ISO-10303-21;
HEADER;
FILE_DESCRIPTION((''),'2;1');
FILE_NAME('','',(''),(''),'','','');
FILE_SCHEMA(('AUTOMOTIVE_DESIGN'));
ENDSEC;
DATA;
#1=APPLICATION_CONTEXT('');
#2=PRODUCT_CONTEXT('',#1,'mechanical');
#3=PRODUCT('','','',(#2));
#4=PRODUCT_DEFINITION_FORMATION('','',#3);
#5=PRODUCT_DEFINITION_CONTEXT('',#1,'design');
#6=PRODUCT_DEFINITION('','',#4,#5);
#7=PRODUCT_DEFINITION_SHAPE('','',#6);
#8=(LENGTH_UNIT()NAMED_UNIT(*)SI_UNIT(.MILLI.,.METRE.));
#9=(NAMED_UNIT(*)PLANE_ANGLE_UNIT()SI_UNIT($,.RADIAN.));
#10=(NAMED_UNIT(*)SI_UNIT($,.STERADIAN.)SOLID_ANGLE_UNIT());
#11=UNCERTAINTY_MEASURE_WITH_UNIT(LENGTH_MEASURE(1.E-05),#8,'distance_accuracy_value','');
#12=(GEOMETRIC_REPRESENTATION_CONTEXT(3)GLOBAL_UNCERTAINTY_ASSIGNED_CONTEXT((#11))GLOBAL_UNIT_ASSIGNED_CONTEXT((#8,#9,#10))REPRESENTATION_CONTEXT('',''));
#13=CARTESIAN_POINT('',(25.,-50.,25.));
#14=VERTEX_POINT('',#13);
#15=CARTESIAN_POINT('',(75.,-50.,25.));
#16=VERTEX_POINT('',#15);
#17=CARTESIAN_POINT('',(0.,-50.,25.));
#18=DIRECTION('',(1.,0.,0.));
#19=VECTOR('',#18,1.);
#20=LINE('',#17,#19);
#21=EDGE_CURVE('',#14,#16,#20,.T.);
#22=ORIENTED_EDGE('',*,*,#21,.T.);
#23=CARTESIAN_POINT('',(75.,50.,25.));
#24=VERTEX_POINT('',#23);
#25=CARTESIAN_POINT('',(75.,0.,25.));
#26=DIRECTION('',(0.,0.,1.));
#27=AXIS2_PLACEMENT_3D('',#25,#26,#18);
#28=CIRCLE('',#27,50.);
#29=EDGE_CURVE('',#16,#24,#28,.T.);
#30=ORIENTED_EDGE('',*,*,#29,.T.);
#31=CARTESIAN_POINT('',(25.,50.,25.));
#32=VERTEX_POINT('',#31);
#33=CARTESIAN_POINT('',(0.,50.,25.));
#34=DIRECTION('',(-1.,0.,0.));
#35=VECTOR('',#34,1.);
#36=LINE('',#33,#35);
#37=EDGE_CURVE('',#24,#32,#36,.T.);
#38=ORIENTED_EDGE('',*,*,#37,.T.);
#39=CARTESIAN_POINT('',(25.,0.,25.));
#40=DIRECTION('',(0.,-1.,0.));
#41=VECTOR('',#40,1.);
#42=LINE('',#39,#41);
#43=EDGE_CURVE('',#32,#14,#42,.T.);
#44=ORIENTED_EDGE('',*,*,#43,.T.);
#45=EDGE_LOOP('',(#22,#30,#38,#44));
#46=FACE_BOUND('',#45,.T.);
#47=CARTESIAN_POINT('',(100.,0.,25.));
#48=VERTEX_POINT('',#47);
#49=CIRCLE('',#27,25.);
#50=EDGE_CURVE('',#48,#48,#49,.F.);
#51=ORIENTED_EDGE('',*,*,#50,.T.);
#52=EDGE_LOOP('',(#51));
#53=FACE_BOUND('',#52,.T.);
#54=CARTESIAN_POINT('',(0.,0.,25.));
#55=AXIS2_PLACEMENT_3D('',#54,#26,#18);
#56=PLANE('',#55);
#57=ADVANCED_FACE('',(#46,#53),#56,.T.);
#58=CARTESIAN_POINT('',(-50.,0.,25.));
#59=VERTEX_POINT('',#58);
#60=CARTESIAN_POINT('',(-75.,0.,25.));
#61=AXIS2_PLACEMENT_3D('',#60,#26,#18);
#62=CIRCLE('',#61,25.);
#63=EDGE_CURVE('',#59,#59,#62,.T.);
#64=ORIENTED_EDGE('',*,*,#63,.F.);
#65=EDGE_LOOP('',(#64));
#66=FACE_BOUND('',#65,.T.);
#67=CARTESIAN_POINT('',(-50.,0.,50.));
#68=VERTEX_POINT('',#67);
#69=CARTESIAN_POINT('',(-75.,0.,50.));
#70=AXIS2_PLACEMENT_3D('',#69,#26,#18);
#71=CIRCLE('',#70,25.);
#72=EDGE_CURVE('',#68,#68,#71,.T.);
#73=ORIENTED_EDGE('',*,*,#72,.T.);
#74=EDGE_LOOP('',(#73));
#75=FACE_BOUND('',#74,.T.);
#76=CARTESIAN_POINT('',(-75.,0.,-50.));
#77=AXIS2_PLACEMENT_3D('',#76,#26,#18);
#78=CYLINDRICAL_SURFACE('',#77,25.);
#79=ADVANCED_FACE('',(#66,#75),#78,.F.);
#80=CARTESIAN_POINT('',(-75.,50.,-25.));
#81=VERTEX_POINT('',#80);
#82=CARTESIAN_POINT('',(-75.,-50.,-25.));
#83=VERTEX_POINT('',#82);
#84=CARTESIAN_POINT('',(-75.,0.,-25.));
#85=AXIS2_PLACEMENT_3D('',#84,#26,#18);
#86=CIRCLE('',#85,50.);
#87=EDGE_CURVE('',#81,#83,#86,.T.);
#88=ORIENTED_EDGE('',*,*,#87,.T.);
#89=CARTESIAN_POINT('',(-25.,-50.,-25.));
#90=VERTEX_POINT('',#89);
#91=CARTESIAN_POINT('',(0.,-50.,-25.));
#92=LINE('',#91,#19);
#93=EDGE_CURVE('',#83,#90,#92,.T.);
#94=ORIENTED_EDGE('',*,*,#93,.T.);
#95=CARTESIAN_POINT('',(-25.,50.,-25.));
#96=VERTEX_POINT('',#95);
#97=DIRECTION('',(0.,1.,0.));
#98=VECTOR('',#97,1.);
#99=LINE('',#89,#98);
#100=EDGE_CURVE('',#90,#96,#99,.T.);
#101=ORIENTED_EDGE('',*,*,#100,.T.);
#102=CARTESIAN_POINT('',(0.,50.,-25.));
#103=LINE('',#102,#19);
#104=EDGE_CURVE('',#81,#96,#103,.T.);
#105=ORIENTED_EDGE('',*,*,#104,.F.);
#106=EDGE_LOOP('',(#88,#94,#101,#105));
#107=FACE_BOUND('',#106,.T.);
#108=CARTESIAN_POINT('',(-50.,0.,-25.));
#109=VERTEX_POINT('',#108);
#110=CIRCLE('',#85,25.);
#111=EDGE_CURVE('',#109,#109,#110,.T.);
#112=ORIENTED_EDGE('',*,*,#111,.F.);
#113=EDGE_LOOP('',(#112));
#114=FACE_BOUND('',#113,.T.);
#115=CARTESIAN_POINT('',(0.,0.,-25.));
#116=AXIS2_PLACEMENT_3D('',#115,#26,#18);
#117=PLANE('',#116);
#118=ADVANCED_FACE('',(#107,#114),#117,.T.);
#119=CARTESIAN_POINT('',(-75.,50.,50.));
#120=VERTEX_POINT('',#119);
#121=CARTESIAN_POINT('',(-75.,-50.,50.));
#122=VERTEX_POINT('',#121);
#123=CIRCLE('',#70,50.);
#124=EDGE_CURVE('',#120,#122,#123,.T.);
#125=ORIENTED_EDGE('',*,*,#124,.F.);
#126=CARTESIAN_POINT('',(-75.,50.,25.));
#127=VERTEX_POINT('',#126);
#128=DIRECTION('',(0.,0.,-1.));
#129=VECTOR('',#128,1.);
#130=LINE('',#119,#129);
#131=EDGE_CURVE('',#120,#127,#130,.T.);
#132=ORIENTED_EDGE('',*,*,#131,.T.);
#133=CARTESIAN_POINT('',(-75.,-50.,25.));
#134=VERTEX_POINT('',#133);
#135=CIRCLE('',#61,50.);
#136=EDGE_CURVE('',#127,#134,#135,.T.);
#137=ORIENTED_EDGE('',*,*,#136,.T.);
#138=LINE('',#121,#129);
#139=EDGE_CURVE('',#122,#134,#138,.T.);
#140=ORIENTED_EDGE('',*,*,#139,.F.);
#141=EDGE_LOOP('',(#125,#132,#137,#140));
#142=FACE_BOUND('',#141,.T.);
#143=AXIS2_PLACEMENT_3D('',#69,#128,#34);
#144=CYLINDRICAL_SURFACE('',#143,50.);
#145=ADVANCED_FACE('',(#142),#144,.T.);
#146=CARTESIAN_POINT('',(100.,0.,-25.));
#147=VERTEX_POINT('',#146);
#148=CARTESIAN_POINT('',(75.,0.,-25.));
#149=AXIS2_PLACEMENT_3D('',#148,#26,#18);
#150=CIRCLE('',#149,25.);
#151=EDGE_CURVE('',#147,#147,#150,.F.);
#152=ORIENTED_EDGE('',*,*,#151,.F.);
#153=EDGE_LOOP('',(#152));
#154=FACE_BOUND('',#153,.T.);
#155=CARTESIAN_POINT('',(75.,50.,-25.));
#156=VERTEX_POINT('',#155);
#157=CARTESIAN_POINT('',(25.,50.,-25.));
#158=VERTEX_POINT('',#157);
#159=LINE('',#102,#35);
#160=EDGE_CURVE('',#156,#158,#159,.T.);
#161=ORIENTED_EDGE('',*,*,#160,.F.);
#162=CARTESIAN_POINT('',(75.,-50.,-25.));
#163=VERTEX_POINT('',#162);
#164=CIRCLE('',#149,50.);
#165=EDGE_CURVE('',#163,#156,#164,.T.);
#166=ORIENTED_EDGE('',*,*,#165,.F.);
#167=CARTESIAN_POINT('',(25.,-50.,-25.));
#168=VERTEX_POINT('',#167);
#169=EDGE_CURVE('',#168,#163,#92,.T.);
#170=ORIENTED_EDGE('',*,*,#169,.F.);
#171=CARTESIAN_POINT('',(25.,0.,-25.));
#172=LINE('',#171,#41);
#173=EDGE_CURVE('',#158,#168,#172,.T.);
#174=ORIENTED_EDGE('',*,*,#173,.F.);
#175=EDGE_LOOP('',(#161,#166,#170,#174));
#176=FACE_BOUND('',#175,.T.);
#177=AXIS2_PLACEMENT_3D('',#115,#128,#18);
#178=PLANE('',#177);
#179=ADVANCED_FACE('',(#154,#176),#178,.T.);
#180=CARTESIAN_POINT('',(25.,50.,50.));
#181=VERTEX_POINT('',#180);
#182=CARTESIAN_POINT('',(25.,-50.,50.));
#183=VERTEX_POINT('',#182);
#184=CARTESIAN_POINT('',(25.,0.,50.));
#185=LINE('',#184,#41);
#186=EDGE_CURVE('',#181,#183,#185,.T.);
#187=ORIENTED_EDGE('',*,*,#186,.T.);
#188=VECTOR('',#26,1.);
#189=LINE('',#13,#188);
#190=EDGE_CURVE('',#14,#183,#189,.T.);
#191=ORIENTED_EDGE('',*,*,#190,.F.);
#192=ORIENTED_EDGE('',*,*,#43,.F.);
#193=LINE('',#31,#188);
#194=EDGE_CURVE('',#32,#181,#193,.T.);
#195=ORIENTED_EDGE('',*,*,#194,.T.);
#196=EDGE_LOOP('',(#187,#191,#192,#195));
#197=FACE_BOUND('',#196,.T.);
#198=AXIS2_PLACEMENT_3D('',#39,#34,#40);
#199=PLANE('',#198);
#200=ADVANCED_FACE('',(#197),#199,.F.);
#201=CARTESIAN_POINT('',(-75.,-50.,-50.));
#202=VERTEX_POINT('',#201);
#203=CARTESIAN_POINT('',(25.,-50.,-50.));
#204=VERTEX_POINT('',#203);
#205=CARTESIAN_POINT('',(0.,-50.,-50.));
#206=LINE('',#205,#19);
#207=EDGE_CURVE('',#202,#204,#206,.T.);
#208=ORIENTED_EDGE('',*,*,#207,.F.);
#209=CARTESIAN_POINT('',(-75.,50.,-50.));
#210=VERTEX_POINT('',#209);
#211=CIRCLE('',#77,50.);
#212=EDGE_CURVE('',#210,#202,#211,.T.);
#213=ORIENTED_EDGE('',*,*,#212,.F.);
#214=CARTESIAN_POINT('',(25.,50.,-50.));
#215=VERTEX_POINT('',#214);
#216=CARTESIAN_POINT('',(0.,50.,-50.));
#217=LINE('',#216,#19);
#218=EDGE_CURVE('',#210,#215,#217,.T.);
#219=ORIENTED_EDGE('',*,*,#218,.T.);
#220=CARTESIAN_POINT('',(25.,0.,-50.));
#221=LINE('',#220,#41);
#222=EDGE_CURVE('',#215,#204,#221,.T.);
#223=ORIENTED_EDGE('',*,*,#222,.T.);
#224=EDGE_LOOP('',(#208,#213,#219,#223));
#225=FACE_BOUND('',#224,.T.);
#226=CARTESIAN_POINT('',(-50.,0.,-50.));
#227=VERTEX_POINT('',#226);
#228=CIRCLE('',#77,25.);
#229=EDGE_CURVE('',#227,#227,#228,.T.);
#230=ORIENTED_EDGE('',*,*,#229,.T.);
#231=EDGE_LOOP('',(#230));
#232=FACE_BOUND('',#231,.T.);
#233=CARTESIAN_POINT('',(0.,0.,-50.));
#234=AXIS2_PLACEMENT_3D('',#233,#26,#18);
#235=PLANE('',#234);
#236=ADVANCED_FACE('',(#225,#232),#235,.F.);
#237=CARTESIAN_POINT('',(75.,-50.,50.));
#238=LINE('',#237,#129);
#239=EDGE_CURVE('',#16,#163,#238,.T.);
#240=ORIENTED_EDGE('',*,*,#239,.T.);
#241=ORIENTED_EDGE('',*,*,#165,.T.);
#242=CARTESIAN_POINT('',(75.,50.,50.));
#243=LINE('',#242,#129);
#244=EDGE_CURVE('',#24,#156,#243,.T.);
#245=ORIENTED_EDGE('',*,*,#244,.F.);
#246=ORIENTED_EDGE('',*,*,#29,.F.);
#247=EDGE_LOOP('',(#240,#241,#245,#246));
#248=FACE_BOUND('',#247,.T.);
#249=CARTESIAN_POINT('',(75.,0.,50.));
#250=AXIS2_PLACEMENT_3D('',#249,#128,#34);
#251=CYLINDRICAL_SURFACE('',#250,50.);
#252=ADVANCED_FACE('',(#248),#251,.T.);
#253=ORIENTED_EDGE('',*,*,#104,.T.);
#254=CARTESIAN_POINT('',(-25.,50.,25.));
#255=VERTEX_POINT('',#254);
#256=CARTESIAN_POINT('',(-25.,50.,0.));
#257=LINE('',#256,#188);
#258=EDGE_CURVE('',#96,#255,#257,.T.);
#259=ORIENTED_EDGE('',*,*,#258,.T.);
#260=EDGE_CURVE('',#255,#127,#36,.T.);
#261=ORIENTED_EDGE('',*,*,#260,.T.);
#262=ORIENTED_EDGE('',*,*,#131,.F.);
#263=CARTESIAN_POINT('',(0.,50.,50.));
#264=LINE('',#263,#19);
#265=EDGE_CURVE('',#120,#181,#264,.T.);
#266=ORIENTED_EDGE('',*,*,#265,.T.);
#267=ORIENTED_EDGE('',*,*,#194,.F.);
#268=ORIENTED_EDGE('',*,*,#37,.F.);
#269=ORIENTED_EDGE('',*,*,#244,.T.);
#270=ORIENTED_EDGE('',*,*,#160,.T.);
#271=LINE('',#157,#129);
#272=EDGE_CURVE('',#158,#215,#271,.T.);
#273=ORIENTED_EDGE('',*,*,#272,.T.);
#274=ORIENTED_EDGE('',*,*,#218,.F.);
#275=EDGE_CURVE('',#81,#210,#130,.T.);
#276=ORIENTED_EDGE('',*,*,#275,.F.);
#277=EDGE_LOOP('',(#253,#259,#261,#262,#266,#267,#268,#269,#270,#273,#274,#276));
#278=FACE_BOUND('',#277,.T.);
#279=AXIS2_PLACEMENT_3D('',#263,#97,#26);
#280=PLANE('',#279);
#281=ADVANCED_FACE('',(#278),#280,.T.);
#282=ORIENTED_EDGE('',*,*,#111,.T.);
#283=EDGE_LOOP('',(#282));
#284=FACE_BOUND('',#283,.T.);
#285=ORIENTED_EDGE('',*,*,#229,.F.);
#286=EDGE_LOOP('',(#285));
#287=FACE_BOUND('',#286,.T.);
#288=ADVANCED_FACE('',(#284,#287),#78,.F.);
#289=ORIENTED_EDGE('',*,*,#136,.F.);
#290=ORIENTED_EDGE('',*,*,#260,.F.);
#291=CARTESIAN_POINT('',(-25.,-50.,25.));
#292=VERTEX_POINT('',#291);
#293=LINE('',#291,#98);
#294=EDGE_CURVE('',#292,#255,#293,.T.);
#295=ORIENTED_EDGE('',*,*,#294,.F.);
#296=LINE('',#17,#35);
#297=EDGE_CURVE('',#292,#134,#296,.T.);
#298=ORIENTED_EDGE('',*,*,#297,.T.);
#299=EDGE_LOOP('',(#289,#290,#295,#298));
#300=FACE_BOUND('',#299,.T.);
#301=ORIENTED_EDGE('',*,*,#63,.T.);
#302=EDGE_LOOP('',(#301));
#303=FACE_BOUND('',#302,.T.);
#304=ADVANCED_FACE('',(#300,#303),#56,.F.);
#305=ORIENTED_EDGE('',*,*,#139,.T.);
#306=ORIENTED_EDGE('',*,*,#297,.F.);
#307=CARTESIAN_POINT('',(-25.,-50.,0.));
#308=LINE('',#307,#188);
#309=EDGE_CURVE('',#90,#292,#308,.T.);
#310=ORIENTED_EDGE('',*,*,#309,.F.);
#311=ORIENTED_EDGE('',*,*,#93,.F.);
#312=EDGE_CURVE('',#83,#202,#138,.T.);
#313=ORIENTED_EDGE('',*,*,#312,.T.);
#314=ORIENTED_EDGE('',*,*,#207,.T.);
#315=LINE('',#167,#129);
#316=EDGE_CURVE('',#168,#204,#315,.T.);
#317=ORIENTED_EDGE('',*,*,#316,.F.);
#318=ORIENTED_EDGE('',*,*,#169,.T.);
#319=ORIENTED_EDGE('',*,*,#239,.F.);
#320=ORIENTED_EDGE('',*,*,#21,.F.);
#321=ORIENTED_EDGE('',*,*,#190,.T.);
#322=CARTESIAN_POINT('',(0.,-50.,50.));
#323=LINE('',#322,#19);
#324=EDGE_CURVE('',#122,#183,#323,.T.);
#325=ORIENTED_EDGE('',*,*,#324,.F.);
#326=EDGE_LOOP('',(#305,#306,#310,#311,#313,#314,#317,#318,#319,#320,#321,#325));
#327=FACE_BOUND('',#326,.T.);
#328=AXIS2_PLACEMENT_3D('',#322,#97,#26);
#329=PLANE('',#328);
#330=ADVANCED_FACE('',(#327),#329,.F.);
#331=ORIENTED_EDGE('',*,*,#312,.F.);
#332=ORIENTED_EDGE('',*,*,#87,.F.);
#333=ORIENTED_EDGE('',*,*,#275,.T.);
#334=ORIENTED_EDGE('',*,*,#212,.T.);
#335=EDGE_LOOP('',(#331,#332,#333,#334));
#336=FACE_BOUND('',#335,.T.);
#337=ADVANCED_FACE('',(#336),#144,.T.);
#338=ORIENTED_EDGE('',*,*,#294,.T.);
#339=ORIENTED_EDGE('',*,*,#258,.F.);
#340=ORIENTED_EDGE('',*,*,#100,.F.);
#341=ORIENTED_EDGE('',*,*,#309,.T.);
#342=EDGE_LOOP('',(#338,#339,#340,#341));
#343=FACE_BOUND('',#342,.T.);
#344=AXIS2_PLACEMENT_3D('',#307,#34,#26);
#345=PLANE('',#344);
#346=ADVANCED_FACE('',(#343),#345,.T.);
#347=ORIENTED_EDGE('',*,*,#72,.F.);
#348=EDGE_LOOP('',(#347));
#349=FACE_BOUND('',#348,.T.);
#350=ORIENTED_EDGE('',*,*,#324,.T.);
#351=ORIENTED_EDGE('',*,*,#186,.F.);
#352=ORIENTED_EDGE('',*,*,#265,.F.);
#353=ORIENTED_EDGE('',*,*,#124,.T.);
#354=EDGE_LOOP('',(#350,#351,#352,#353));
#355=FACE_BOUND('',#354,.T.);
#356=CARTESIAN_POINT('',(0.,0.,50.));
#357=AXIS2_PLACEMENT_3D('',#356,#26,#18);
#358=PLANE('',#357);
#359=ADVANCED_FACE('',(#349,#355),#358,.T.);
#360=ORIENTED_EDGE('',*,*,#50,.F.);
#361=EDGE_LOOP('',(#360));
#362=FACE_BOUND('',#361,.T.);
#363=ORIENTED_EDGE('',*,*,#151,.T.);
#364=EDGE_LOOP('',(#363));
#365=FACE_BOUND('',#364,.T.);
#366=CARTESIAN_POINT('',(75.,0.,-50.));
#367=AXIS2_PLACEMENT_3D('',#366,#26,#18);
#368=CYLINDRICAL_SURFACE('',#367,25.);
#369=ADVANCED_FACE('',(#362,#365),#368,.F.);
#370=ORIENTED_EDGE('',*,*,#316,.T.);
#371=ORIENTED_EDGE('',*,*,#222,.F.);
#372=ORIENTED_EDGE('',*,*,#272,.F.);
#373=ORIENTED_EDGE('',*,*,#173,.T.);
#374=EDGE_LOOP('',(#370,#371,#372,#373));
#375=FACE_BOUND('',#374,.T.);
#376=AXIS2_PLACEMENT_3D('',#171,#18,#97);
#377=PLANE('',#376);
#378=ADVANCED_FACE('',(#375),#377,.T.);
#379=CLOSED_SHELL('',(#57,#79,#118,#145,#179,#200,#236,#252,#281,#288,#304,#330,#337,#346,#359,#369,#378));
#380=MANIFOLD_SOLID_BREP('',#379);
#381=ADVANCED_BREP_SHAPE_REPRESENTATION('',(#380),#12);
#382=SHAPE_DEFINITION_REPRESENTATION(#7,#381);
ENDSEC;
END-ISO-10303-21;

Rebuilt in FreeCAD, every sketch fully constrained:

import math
import FreeCAD as App
import Part
import Sketcher

V = App.Vector
Q = App.Units.Quantity


def add_polygon(sketch, points):
    """Adds a closed chain of lines whose ends are joined by coincident constraints."""
    first, n = sketch.GeometryCount, len(points)
    for a, b in zip(points, points[1:] + points[:1]):
        sketch.addGeometry(Part.LineSegment(App.Vector(*a, 0), App.Vector(*b, 0)), False)
    for i in range(n):
        sketch.addConstraint(Sketcher.Constraint("Coincident", first + i, 2, first + (i + 1) % n, 1))

doc = App.newDocument("Part")
body = doc.addObject("PartDesign::Body", "Body")

sketch1 = doc.addObject("Sketcher::SketchObject", "Sketch")
body.addObject(sketch1)
sketch1.AttachmentSupport = (doc.XY_Plane, [""])
sketch1.MapMode = "FlatFace"
sketch1.addGeometry(Part.LineSegment(V(-75, -50, 0), V(75, -50, 0)), False)
sketch1.addGeometry(Part.ArcOfCircle(Part.Circle(V(75, 0, 0), V(0, 0, 1), 50), math.radians(-90), math.radians(0)), False)
sketch1.addGeometry(Part.ArcOfCircle(Part.Circle(V(75, 0, 0), V(0, 0, 1), 50), math.radians(0), math.radians(90)), False)
sketch1.addGeometry(Part.LineSegment(V(75, 50, 0), V(-75, 50, 0)), False)
sketch1.addGeometry(Part.ArcOfCircle(Part.Circle(V(-75, 0, 0), V(0, 0, 1), 50), math.radians(90), math.radians(270)), False)
sketch1.addConstraint(Sketcher.Constraint("Tangent", 0, 2, 1, 1))
sketch1.addConstraint(Sketcher.Constraint("Tangent", 1, 2, 2, 1))
sketch1.addConstraint(Sketcher.Constraint("Tangent", 2, 2, 3, 1))
sketch1.addConstraint(Sketcher.Constraint("Tangent", 3, 2, 4, 1))
sketch1.addConstraint(Sketcher.Constraint("Tangent", 4, 2, 0, 1))
sketch1.addConstraint(Sketcher.Constraint("Horizontal", 0))
sketch1.addConstraint(Sketcher.Constraint("Horizontal", 3))
sketch1.addConstraint(Sketcher.Constraint("Equal", 1, 2))
sketch1.addConstraint(Sketcher.Constraint("Symmetric", 1, 3, 4, 3, -1, 1))
sketch1.addConstraint(Sketcher.Constraint("PointOnObject", 1, 2, -1))
sketch1.addConstraint(Sketcher.Constraint("Radius", 1, Q("50 mm")))
sketch1.addConstraint(Sketcher.Constraint("DistanceX", 0, 1, 0, 2, Q("150 mm")))
pad1 = doc.addObject("PartDesign::Pad", "Pad")
body.addObject(pad1)
pad1.Profile = sketch1
pad1.Length = 100
pad1.Midplane = True

sketch2 = doc.addObject("Sketcher::SketchObject", "Sketch001")
body.addObject(sketch2)
sketch2.AttachmentSupport = (doc.XY_Plane, [""])
sketch2.MapMode = "FlatFace"
sketch2.addGeometry(Part.LineSegment(V(-75, -50, 0), V(-75, 50, 0)), False)
sketch2.addGeometry(Part.ArcOfCircle(Part.Circle(V(-75, 0, 0), V(0, 0, 1), 50), math.radians(90), math.radians(270)), False)
sketch2.addConstraint(Sketcher.Constraint("Coincident", 0, 1, 1, 2))
sketch2.addConstraint(Sketcher.Constraint("Coincident", 1, 1, 0, 2))
sketch2.addConstraint(Sketcher.Constraint("Vertical", 0))
sketch2.addConstraint(Sketcher.Constraint("PointOnObject", 1, 3, -1))
sketch2.addConstraint(Sketcher.Constraint("Vertical", 1, 3, 0, 1))
sketch2.addConstraint(Sketcher.Constraint("Radius", 1, Q("50 mm")))
sketch2.addConstraint(Sketcher.Constraint("DistanceX", 1, 3, -1, 1, Q("75 mm")))
pocket1 = doc.addObject("PartDesign::Pocket", "Pocket")
body.addObject(pocket1)
pocket1.Profile = sketch2
pocket1.Length = 50
pocket1.Midplane = True

sketch3 = doc.addObject("Sketcher::SketchObject", "Sketch002")
body.addObject(sketch3)
sketch3.AttachmentSupport = (doc.XZ_Plane, [""])
sketch3.MapMode = "FlatFace"
sketch3.AttachmentOffset = App.Placement(V(0, 0, -50), App.Rotation())
add_polygon(sketch3, [(-75, -25), (-75, 25), (-25, 25), (-25, -25)])
sketch3.addConstraint(Sketcher.Constraint("Vertical", 0))
sketch3.addConstraint(Sketcher.Constraint("Horizontal", 1))
sketch3.addConstraint(Sketcher.Constraint("Vertical", 2))
sketch3.addConstraint(Sketcher.Constraint("Horizontal", 3))
sketch3.addConstraint(Sketcher.Constraint("Equal", 3, 0))
sketch3.addConstraint(Sketcher.Constraint("DistanceX", 1, 1, 1, 2, Q("50 mm")))
sketch3.addConstraint(Sketcher.Constraint("DistanceX", 0, 2, -1, 1, Q("75 mm")))
sketch3.addConstraint(Sketcher.Constraint("DistanceY", -1, 1, 0, 2, Q("25 mm")))
pocket2 = doc.addObject("PartDesign::Pocket", "Pocket001")
body.addObject(pocket2)
pocket2.Profile = sketch3
pocket2.Type = "ThroughAll"
pocket2.Reversed = True

sketch4 = doc.addObject("Sketcher::SketchObject", "Sketch003")
body.addObject(sketch4)
sketch4.AttachmentSupport = (doc.XY_Plane, [""])
sketch4.MapMode = "FlatFace"
sketch4.AttachmentOffset = App.Placement(V(0, 0, 50), App.Rotation())
sketch4.addGeometry(Part.Circle(V(-75, 0, 0), V(0, 0, 1), 25), False)
sketch4.addConstraint(Sketcher.Constraint("PointOnObject", 0, 3, -1))
sketch4.addConstraint(Sketcher.Constraint("Diameter", 0, Q("50 mm")))
sketch4.addConstraint(Sketcher.Constraint("DistanceX", 0, 3, -1, 1, Q("75 mm")))
pocket3 = doc.addObject("PartDesign::Pocket", "Pocket002")
body.addObject(pocket3)
pocket3.Profile = sketch4
pocket3.Type = "ThroughAll"
pocket3.Midplane = True

sketch5 = doc.addObject("Sketcher::SketchObject", "Sketch004")
body.addObject(sketch5)
sketch5.AttachmentSupport = (doc.XY_Plane, [""])
sketch5.MapMode = "FlatFace"
sketch5.AttachmentOffset = App.Placement(V(0, 0, 50), App.Rotation())
sketch5.addGeometry(Part.Circle(V(75, 0, 0), V(0, 0, 1), 25), False)
sketch5.addConstraint(Sketcher.Constraint("PointOnObject", 0, 3, -1))
sketch5.addConstraint(Sketcher.Constraint("Diameter", 0, Q("50 mm")))
sketch5.addConstraint(Sketcher.Constraint("DistanceX", -1, 1, 0, 3, Q("75 mm")))
pocket4 = doc.addObject("PartDesign::Pocket", "Pocket003")
body.addObject(pocket4)
pocket4.Profile = sketch5
pocket4.Type = "ThroughAll"
pocket4.Midplane = True

sketch6 = doc.addObject("Sketcher::SketchObject", "Sketch005")
body.addObject(sketch6)
sketch6.AttachmentSupport = (doc.XY_Plane, [""])
sketch6.MapMode = "FlatFace"
sketch6.AttachmentOffset = App.Placement(V(0, 0, 50), App.Rotation())
sketch6.addGeometry(Part.LineSegment(V(75, 50, 0), V(25, 50, 0)), False)
sketch6.addGeometry(Part.LineSegment(V(25, 50, 0), V(25, -50, 0)), False)
sketch6.addGeometry(Part.LineSegment(V(25, -50, 0), V(75, -50, 0)), False)
sketch6.addGeometry(Part.ArcOfCircle(Part.Circle(V(75, 0, 0), V(0, 0, 1), 50), math.radians(-90), math.radians(90)), False)
sketch6.addGeometry(Part.Circle(V(75, 0, 0), V(0, 0, 1), 25), False)
sketch6.addConstraint(Sketcher.Constraint("Coincident", 0, 2, 1, 1))
sketch6.addConstraint(Sketcher.Constraint("Coincident", 1, 2, 2, 1))
sketch6.addConstraint(Sketcher.Constraint("Tangent", 2, 2, 3, 1))
sketch6.addConstraint(Sketcher.Constraint("Tangent", 3, 2, 0, 1))
sketch6.addConstraint(Sketcher.Constraint("Horizontal", 0))
sketch6.addConstraint(Sketcher.Constraint("Vertical", 1))
sketch6.addConstraint(Sketcher.Constraint("Horizontal", 2))
sketch6.addConstraint(Sketcher.Constraint("Coincident", 4, 3, 3, 3))
sketch6.addConstraint(Sketcher.Constraint("PointOnObject", 3, 3, -1))
sketch6.addConstraint(Sketcher.Constraint("Diameter", 4, Q("50 mm")))
sketch6.addConstraint(Sketcher.Constraint("Radius", 3, Q("50 mm")))
sketch6.addConstraint(Sketcher.Constraint("DistanceX", 0, 2, 0, 1, Q("50 mm")))
sketch6.addConstraint(Sketcher.Constraint("DistanceX", -1, 1, 3, 3, Q("75 mm")))
pocket5 = doc.addObject("PartDesign::Pocket", "Pocket004")
body.addObject(pocket5)
pocket5.Profile = sketch6
pocket5.Length = 25
doc.recompute()

mirrored = doc.addObject("PartDesign::Mirrored", "Mirrored")
body.addObject(mirrored)
mirrored.Originals = [pocket5]
mirrored.MirrorPlane = (doc.XY_Plane, [""])
body.Tip = mirrored

doc.recompute()
